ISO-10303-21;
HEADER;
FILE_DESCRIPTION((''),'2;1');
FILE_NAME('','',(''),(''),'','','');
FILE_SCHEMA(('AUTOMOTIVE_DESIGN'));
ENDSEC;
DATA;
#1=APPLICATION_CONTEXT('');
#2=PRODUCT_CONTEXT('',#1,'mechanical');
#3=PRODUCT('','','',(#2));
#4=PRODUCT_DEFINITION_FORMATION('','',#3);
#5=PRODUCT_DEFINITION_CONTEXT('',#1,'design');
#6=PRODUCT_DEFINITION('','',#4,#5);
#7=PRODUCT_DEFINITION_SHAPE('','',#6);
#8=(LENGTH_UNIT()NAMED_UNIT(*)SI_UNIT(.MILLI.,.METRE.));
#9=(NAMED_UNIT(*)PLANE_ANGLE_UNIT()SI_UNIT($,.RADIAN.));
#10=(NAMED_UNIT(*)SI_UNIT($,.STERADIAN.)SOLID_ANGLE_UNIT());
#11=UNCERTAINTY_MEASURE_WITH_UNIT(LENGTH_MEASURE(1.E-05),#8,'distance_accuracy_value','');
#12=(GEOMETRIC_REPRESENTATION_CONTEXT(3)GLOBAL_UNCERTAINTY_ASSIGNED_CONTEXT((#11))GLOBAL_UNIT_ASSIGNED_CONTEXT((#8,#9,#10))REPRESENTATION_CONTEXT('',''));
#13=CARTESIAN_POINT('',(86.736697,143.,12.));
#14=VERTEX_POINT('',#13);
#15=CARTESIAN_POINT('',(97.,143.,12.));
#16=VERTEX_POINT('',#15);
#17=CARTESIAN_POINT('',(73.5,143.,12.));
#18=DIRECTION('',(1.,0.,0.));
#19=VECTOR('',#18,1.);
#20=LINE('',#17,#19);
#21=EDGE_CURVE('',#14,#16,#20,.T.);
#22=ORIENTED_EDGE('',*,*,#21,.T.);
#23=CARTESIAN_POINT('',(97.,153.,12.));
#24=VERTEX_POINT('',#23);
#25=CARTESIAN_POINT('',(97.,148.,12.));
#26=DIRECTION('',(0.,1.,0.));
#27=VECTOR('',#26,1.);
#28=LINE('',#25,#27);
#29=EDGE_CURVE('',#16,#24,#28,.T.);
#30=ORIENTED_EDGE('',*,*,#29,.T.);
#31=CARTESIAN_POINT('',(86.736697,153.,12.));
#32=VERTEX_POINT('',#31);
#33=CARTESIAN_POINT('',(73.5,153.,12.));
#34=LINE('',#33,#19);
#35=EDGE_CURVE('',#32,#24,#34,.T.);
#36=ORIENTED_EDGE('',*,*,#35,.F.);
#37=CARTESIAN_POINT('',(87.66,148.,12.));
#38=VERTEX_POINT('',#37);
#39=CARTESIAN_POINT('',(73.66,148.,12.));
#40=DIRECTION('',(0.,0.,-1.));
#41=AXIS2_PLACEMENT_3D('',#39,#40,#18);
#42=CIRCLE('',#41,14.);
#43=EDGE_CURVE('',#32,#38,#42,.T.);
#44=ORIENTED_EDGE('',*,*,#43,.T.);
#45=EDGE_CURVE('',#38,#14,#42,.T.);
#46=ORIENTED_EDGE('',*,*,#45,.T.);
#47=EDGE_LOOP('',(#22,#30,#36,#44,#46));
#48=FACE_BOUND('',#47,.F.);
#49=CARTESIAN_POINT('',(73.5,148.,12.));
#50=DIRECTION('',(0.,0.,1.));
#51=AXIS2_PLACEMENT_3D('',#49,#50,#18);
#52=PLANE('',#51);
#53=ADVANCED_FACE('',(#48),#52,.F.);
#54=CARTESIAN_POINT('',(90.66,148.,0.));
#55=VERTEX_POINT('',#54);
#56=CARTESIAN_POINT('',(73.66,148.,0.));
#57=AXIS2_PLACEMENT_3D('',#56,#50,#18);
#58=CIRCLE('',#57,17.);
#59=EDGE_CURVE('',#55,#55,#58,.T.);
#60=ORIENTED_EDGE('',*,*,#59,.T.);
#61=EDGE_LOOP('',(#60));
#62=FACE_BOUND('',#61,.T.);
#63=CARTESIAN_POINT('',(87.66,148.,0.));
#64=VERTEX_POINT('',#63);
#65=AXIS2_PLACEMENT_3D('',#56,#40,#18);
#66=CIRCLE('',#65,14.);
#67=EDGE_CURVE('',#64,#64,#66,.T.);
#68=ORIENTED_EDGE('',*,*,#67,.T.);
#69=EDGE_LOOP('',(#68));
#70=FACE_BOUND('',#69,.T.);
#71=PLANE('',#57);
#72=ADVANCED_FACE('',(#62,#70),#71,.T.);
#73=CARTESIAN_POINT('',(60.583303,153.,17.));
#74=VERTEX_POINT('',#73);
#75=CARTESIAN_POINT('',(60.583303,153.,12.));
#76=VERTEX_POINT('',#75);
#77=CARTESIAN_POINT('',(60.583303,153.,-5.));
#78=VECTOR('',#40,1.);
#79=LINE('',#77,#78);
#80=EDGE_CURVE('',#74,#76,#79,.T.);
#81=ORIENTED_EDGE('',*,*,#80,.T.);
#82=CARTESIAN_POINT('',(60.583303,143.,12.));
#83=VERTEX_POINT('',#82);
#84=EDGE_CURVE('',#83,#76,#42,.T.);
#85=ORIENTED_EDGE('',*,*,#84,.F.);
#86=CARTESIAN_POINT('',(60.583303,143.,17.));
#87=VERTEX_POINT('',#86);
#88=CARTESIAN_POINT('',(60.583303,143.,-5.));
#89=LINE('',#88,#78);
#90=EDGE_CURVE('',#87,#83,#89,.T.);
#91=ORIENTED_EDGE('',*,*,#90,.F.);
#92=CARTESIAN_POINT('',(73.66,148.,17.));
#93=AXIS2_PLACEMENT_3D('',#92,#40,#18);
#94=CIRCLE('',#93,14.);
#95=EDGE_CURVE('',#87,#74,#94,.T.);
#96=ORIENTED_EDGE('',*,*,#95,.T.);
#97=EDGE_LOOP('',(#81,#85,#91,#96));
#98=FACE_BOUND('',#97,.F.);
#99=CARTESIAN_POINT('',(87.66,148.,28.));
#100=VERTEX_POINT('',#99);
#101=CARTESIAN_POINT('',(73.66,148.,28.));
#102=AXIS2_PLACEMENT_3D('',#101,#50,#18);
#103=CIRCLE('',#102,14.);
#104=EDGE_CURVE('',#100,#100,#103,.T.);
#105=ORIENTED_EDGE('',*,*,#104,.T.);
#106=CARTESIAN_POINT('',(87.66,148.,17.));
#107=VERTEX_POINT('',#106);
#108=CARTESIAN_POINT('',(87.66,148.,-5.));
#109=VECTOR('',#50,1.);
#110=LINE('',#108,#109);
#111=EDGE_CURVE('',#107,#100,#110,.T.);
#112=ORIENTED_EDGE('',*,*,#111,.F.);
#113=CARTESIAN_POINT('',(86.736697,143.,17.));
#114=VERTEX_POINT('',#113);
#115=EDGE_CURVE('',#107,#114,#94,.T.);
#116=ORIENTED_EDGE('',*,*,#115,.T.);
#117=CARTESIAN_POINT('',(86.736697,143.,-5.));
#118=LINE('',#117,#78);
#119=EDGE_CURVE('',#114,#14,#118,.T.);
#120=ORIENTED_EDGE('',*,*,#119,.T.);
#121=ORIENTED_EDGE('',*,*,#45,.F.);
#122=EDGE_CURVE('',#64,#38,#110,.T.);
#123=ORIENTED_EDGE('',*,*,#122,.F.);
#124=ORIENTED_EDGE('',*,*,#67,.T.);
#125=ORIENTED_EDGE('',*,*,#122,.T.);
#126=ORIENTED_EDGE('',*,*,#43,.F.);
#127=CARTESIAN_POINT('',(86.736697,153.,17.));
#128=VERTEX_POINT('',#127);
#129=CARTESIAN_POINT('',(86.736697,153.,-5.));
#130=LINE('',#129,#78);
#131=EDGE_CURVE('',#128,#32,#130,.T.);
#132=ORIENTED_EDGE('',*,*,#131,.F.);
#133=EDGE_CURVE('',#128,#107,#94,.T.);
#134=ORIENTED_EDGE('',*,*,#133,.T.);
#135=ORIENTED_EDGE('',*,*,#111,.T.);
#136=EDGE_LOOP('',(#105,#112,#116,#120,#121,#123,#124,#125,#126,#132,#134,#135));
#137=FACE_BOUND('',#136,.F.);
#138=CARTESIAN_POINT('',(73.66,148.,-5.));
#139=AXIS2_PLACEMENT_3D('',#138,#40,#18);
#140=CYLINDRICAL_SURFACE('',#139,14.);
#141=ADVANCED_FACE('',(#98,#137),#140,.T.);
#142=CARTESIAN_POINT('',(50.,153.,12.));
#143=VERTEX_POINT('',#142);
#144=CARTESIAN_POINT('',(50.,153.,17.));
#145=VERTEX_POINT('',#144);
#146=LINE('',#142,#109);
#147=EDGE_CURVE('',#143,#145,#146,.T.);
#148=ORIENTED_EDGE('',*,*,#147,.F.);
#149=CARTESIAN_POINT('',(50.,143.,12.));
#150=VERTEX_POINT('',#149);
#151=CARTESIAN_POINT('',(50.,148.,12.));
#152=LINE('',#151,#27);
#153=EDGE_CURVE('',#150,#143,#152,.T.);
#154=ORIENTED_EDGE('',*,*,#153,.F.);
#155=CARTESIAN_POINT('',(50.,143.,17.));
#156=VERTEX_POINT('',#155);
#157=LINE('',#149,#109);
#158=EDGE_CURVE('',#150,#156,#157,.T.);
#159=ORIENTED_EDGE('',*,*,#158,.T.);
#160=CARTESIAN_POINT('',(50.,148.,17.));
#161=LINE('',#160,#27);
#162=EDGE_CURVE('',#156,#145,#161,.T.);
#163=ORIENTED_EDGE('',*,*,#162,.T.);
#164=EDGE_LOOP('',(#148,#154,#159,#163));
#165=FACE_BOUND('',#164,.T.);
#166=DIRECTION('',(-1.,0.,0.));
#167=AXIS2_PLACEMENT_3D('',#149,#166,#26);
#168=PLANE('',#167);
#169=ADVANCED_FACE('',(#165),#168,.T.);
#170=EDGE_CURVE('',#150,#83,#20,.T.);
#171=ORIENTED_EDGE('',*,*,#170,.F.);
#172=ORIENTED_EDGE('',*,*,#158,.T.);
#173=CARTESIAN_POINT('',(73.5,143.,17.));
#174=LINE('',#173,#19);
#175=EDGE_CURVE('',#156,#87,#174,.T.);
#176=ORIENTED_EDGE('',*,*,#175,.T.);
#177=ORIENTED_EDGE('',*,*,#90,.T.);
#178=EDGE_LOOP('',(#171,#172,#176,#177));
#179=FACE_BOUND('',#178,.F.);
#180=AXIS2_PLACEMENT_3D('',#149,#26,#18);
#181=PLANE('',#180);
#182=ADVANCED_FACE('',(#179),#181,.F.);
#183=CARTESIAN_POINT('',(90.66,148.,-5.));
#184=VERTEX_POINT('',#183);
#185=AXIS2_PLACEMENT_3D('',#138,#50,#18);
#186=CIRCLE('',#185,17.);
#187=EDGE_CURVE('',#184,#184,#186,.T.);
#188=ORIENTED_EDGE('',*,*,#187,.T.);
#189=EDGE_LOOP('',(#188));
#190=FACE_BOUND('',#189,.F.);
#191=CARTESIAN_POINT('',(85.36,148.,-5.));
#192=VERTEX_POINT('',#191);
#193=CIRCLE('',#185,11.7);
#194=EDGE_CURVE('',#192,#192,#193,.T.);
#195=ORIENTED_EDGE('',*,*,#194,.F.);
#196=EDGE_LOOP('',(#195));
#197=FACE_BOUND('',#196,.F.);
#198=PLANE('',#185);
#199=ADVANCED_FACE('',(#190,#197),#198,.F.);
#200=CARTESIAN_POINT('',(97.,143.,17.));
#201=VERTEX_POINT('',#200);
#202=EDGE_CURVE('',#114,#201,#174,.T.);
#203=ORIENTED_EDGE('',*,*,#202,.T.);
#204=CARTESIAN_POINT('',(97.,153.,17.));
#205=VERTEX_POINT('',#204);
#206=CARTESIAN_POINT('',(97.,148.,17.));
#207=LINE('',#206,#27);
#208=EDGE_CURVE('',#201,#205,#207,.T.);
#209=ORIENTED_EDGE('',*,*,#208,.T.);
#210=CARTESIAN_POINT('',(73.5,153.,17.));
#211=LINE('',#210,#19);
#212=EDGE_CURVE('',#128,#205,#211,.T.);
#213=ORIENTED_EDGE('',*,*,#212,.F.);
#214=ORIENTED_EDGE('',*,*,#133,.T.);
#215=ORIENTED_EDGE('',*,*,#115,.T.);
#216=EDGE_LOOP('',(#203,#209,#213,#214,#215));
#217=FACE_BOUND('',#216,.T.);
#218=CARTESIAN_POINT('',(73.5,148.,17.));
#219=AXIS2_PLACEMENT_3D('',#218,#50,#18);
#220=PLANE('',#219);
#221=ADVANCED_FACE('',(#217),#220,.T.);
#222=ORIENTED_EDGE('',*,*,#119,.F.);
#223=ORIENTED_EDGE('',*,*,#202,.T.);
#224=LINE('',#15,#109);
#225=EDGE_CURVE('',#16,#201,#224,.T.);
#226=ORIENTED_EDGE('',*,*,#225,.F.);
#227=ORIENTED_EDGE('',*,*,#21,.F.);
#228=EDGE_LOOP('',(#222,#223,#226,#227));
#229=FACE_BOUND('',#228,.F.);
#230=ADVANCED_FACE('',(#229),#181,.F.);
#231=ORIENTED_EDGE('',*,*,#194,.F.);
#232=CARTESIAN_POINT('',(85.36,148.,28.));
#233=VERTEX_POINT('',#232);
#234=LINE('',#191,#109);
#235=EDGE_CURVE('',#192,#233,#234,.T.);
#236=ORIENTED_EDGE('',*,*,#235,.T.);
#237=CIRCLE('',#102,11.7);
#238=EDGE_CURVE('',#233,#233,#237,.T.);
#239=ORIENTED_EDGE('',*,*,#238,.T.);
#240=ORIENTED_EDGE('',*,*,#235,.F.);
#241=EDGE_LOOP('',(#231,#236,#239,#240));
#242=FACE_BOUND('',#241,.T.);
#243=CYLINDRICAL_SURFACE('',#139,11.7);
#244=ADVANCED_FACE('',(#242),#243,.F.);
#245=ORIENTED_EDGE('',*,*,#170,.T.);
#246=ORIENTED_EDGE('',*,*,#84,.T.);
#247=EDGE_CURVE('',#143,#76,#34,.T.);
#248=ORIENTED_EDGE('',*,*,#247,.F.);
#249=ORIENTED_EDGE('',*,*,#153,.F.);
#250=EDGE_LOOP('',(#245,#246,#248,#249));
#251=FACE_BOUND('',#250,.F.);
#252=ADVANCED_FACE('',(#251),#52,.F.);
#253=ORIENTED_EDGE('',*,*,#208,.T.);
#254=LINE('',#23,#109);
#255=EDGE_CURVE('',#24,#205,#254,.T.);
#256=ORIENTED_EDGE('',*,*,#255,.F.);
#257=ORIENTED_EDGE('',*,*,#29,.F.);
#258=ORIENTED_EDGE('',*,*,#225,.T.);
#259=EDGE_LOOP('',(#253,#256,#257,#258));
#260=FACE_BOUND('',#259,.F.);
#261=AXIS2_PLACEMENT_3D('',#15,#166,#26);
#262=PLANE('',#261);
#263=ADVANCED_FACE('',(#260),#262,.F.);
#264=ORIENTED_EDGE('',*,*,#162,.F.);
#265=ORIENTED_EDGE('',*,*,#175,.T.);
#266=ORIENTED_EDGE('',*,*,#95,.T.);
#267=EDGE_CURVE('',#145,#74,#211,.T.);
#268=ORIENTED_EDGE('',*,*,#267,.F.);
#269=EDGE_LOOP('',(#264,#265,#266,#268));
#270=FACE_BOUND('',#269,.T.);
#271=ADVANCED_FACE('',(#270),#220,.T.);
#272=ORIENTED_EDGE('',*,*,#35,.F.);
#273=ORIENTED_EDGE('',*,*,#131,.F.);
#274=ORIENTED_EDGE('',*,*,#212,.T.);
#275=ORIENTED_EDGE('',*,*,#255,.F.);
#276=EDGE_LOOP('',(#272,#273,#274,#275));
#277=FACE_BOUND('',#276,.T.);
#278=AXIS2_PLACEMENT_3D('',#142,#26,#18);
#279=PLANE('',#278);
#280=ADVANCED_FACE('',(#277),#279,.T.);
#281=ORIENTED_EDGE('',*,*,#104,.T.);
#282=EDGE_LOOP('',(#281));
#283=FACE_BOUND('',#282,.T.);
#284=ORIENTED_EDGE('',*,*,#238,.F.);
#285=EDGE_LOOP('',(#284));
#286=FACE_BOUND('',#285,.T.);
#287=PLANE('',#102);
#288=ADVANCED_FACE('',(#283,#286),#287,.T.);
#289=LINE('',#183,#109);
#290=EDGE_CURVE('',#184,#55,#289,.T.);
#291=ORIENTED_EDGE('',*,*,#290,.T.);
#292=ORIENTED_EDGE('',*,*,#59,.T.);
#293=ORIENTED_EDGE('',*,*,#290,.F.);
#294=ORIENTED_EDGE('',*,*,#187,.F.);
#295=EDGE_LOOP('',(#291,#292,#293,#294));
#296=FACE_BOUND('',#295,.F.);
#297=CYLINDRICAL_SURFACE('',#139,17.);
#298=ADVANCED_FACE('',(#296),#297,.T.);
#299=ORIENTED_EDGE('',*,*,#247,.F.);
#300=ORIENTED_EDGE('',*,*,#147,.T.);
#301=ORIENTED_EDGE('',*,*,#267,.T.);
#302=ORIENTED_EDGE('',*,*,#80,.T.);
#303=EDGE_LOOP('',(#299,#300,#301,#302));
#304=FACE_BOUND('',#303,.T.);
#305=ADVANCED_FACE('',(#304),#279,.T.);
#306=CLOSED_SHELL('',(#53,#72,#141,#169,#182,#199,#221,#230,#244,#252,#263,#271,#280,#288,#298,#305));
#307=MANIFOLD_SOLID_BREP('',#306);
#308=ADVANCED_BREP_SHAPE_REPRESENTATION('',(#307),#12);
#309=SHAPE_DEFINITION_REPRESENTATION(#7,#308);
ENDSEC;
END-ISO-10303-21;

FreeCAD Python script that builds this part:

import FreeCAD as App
import Part
import Sketcher
from FreeCAD import Vector

doc = App.newDocument("Part")
body = doc.addObject("PartDesign::Body", "Body")

# Sketch on XY plane
sketch1 = doc.addObject("Sketcher::SketchObject", "Sketch")
body.addObject(sketch1)
sketch1.AttachmentSupport = (doc.XY_Plane, [""])
sketch1.MapMode = "FlatFace"
sketch1.AttachmentOffset = App.Placement(Vector(0, 0, -15), App.Rotation())
sketch1.addGeometry(Part.Circle(Vector(53.7, 148, 0), Vector(0, 0, 1), 1.5), False)
sketch1.addConstraint([
    Sketcher.Constraint("Diameter", 0, 3.0),
    Sketcher.Constraint("DistanceY", -1, 1, 0, 3, 148.0),
    Sketcher.Constraint("DistanceX", -1, 1, 0, 3, 53.66),
])
pad1 = doc.addObject("PartDesign::Pad", "Pad")
body.addObject(pad1)
pad1.Profile = sketch1
pad1.Length = 14
body2 = doc.addObject("PartDesign::Body", "Body001")

# Sketch on XY plane
sketch2 = doc.addObject("Sketcher::SketchObject", "Sketch001")
body2.addObject(sketch2)
sketch2.AttachmentSupport = (doc.getObject("XY_Plane001"), [""])
sketch2.MapMode = "FlatFace"
sketch2.AttachmentOffset = App.Placement(Vector(0, 0, -10), App.Rotation())
sketch2.addGeometry(Part.Circle(Vector(74, 148, 0), Vector(0, 0, 1), 12), False)
sketch2.addConstraint([
    Sketcher.Constraint("Diameter", 0, 23.4),
    Sketcher.Constraint("DistanceY", -1, 1, 0, 3, 148.0),
    Sketcher.Constraint("DistanceX", -1, 1, 0, 3, 73.66),
])
pad2 = doc.addObject("PartDesign::Pad", "Pad001")
body2.addObject(pad2)
pad2.Profile = sketch2
pad2.Length = 33
body3 = doc.addObject("PartDesign::Body", "Body002")
body3.AllowCompound = True

# Sketch on XY plane
sketch3 = doc.addObject("Sketcher::SketchObject", "Sketch002")
body3.addObject(sketch3)
sketch3.AttachmentSupport = (doc.getObject("XY_Plane002"), [""])
sketch3.MapMode = "FlatFace"
sketch3.AttachmentOffset = App.Placement(Vector(0, 0, -14), App.Rotation())
sketch3.addGeometry(Part.Circle(Vector(93.7, 148, 0), Vector(0, 0, 1), 1.5), False)
sketch3.addConstraint([
    Sketcher.Constraint("Diameter", 0, 3.0),
    Sketcher.Constraint("DistanceY", -1, 1, 0, 3, 148.0),
    Sketcher.Constraint("DistanceX", -1, 1, 0, 3, 93.66),
])
pad3 = doc.addObject("PartDesign::Pad", "Pad002")
body3.addObject(pad3)
pad3.Profile = sketch3
pad3.Length = 14
doc.recompute()

boolean = doc.addObject("PartDesign::Boolean", "Boolean")
body3.addObject(boolean)
boolean.Type = "Fuse"
boolean.addObjects([body])
doc.recompute()

boolean2 = doc.addObject("PartDesign::Boolean", "Boolean001")
body3.addObject(boolean2)
boolean2.Type = "Fuse"
boolean2.addObjects([body2])
body4 = doc.addObject("PartDesign::Body", "Body003")

# Sketch on XY plane
sketch4 = doc.addObject("Sketcher::SketchObject", "Sketch003")
body4.addObject(sketch4)
sketch4.AttachmentSupport = (doc.getObject("XY_Plane003"), [""])
sketch4.MapMode = "FlatFace"
sketch4.AttachmentOffset = App.Placement(Vector(0, 0, -10), App.Rotation())
sketch4.addGeometry(Part.Circle(Vector(74, 148, 0), Vector(0, 0, 1), 14), False)
sketch4.addConstraint([
    Sketcher.Constraint("Diameter", 0, 28.0),
    Sketcher.Constraint("DistanceY", -1, 1, 0, 3, 148.0),
    Sketcher.Constraint("DistanceX", -1, 1, 0, 3, 73.66),
])
pad4 = doc.addObject("PartDesign::Pad", "Pad003")
body4.addObject(pad4)
pad4.Profile = sketch4
pad4.Length = 33
body5 = doc.addObject("PartDesign::Body", "Body004")

# Sketch on XY plane
sketch5 = doc.addObject("Sketcher::SketchObject", "Sketch004")
body5.addObject(sketch5)
sketch5.AttachmentSupport = (doc.getObject("XY_Plane004"), [""])
sketch5.MapMode = "FlatFace"
sketch5.AttachmentOffset = App.Placement(Vector(0, 0, 7), App.Rotation())
sketch5.addGeometry([
    Part.LineSegment(Vector(50, 153, 0), Vector(50, 143, 0)),
    Part.LineSegment(Vector(50, 143, 0), Vector(97, 143, 0)),
    Part.LineSegment(Vector(97, 143, 0), Vector(97, 153, 0)),
    Part.LineSegment(Vector(97, 153, 0), Vector(50, 153, 0)),
], False)
sketch5.addConstraint([
    Sketcher.Constraint("Coincident", 0, 2, 1, 1),
    Sketcher.Constraint("Coincident", 1, 2, 2, 1),
    Sketcher.Constraint("Coincident", 2, 2, 3, 1),
    Sketcher.Constraint("Coincident", 3, 2, 0, 1),
    Sketcher.Constraint("Vertical", 0),
    Sketcher.Constraint("Horizontal", 1),
    Sketcher.Constraint("Vertical", 2),
    Sketcher.Constraint("Horizontal", 3),
    Sketcher.Constraint("DistanceX", 1, 1, 1, 2, 47.0),
    Sketcher.Constraint("DistanceY", 0, 2, 0, 1, 10.0),
    Sketcher.Constraint("DistanceX", -1, 1, 0, 2, 50.0),
    Sketcher.Constraint("DistanceY", -1, 1, 0, 2, 143.0),
])
pad5 = doc.addObject("PartDesign::Pad", "Pad004")
body5.addObject(pad5)
pad5.Profile = sketch5
pad5.Length = 5
body6 = doc.addObject("PartDesign::Body", "Body005")

# Sketch on XY plane
sketch6 = doc.addObject("Sketcher::SketchObject", "Sketch005")
body6.addObject(sketch6)
sketch6.AttachmentSupport = (doc.getObject("XY_Plane005"), [""])
sketch6.MapMode = "FlatFace"
sketch6.AttachmentOffset = App.Placement(Vector(0, 0, -10), App.Rotation())
sketch6.addGeometry(Part.Circle(Vector(74, 148, 0), Vector(0, 0, 1), 17), False)
sketch6.addConstraint([
    Sketcher.Constraint("Diameter", 0, 34.0),
    Sketcher.Constraint("DistanceY", -1, 1, 0, 3, 148.0),
    Sketcher.Constraint("DistanceX", -1, 1, 0, 3, 73.66),
])
pad6 = doc.addObject("PartDesign::Pad", "Pad005")
body6.addObject(pad6)
pad6.Profile = sketch6
pad6.Length = 5
doc.recompute()

boolean3 = doc.addObject("PartDesign::Boolean", "Boolean002")
body6.addObject(boolean3)
boolean3.Type = "Fuse"
boolean3.addObjects([body4])
doc.recompute()

boolean4 = doc.addObject("PartDesign::Boolean", "Boolean003")
body6.addObject(boolean4)
boolean4.Type = "Fuse"
boolean4.addObjects([body5])
doc.recompute()

boolean5 = doc.addObject("PartDesign::Boolean", "Boolean004")
body6.addObject(boolean5)
boolean5.Type = "Cut"
boolean5.addObjects([body3])
body7 = doc.addObject("PartDesign::Body", "Body006")
doc.recompute()

body6.Placement = App.Placement(Vector(0, 0, 5), App.Rotation(Vector(0, 0, 1), 0))
boolean6 = doc.addObject("PartDesign::Boolean", "Boolean005")
body7.addObject(boolean6)
boolean6.Type = "Fuse"
boolean6.addObjects([body6])

doc.recompute()
